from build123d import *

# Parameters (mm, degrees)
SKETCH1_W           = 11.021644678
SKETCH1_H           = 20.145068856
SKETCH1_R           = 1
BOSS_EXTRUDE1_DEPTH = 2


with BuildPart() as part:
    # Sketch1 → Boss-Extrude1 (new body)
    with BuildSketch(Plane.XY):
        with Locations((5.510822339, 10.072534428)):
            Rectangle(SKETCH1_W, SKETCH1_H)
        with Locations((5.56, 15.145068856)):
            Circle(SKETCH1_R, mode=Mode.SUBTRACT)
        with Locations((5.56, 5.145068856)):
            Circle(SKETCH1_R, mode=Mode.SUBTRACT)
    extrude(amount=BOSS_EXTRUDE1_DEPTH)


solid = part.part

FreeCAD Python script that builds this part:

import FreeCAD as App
import Part
import Sketcher
from FreeCAD import Vector

doc = App.newDocument("Part")
body = doc.addObject("PartDesign::Body", "Body")

sketch1 = body.newObject("Sketcher::SketchObject", "Sketch")
sketch1.AttachmentSupport = (doc.getObject("XY_Plane"), [""])
sketch1.MapMode = "FlatFace"
sketch1.addGeometry([
    Part.LineSegment(Vector(0, 20.1, 0), Vector(0, 0, 0)),
    Part.LineSegment(Vector(0, 0, 0), Vector(11, 0, 0)),
    Part.LineSegment(Vector(11, 0, 0), Vector(11, 20.1, 0)),
    Part.LineSegment(Vector(11, 20.1, 0), Vector(0, 20.1, 0)),
    Part.Circle(Vector(5.6, 5.1, 0), Vector(0, 0, 1), 1),
    Part.Circle(Vector(5.6, 15.1, 0), Vector(0, 0, 1), 1),
], False)
sketch1.addConstraint([
    Sketcher.Constraint("Coincident", 0, 2, 1, 1),
    Sketcher.Constraint("Coincident", 1, 2, 2, 1),
    Sketcher.Constraint("Coincident", 2, 2, 3, 1),
    Sketcher.Constraint("Coincident", 3, 2, 0, 1),
    Sketcher.Constraint("Vertical", 0),
    Sketcher.Constraint("Horizontal", 1),
    Sketcher.Constraint("Vertical", 2),
    Sketcher.Constraint("Horizontal", 3),
    Sketcher.Constraint("Coincident", 0, 2, -1, 1),
    Sketcher.Constraint("Equal", 4, 5),
    Sketcher.Constraint("Vertical", 4, 3, 5, 3),
    Sketcher.Constraint("Diameter", 4, 2.0),
    Sketcher.Constraint("DistanceY", 4, 3, 5, 3, 10.0),
    Sketcher.Constraint("DistanceY", 5, 3, 2, 2, 5.0),
    Sketcher.Constraint("DistanceX", -1, 1, 4, 3, 5.56),
    Sketcher.Constraint("DistanceY", 0, 2, 0, 1, 20.145069),
    Sketcher.Constraint("DistanceX", 1, 1, 1, 2, 11.021645),
])
pad1 = body.newObject("PartDesign::Pad", "Pad")
pad1.Profile = sketch1
pad1.Length = 2

doc.recompute()
